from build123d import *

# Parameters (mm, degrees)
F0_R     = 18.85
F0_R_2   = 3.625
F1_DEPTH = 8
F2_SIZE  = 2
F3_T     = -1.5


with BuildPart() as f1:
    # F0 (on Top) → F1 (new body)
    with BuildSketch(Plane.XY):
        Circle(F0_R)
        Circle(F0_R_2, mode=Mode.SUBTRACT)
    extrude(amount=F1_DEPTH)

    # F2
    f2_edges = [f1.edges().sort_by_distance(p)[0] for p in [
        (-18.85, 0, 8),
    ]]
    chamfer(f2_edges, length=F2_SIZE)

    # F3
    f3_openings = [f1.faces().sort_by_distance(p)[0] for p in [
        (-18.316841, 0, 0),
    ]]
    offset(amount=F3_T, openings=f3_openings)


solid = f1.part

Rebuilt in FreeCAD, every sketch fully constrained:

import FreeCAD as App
import Part
import Sketcher

V = App.Vector


def edges_at(feature, points):
    """Names of the edges that pass closest to the given points."""
    edges = feature.Shape.Edges
    near = lambda p: min(range(len(edges)), key=lambda i: edges[i].distToShape(Part.Vertex(*p))[0])
    return sorted({f"Edge{near(p) + 1}" for p in points})


def faces_at(feature, points):
    """Names of the faces that lie closest to the given points."""
    faces = feature.Shape.Faces
    near = lambda p: min(range(len(faces)), key=lambda i: faces[i].distToShape(Part.Vertex(*p))[0])
    return sorted({f"Face{near(p) + 1}" for p in points})

doc = App.newDocument("Part")
body = doc.addObject("PartDesign::Body", "Body")

sketch1 = body.newObject("Sketcher::SketchObject", "Sketch")
sketch1.AttachmentSupport = (doc.getObject("XY_Plane"), [""])
sketch1.MapMode = "FlatFace"
sketch1.addGeometry(Part.Circle(V(0, 0, 0), V(0, 0, 1), 18.85), False)
sketch1.addGeometry(Part.Circle(V(0, 0, 0), V(0, 0, 1), 3.625), False)
sketch1.addConstraint(Sketcher.Constraint("Coincident", 0, 3, -1, 1))
sketch1.addConstraint(Sketcher.Constraint("Coincident", 1, 3, -1, 1))
sketch1.addConstraint(Sketcher.Constraint("Diameter", 0, 37.7))
sketch1.addConstraint(Sketcher.Constraint("Diameter", 1, 7.25))
pad1 = body.newObject("PartDesign::Pad", "Pad")
pad1.Profile = sketch1
pad1.Length = 8
doc.recompute()

chamfer = body.newObject("PartDesign::Chamfer", "Chamfer")
chamfer.Base = (pad1, edges_at(pad1, [(-18.85, 0, 8)]))
chamfer.Size = 2
doc.recompute()

thickness = body.newObject("PartDesign::Thickness", "Thickness")
thickness.Base = (chamfer, faces_at(chamfer, [(-7.54, -7.54, 0)]))
thickness.Value = 1.5
thickness.Reversed = True
thickness.Join = "Arc"

doc.recompute()
